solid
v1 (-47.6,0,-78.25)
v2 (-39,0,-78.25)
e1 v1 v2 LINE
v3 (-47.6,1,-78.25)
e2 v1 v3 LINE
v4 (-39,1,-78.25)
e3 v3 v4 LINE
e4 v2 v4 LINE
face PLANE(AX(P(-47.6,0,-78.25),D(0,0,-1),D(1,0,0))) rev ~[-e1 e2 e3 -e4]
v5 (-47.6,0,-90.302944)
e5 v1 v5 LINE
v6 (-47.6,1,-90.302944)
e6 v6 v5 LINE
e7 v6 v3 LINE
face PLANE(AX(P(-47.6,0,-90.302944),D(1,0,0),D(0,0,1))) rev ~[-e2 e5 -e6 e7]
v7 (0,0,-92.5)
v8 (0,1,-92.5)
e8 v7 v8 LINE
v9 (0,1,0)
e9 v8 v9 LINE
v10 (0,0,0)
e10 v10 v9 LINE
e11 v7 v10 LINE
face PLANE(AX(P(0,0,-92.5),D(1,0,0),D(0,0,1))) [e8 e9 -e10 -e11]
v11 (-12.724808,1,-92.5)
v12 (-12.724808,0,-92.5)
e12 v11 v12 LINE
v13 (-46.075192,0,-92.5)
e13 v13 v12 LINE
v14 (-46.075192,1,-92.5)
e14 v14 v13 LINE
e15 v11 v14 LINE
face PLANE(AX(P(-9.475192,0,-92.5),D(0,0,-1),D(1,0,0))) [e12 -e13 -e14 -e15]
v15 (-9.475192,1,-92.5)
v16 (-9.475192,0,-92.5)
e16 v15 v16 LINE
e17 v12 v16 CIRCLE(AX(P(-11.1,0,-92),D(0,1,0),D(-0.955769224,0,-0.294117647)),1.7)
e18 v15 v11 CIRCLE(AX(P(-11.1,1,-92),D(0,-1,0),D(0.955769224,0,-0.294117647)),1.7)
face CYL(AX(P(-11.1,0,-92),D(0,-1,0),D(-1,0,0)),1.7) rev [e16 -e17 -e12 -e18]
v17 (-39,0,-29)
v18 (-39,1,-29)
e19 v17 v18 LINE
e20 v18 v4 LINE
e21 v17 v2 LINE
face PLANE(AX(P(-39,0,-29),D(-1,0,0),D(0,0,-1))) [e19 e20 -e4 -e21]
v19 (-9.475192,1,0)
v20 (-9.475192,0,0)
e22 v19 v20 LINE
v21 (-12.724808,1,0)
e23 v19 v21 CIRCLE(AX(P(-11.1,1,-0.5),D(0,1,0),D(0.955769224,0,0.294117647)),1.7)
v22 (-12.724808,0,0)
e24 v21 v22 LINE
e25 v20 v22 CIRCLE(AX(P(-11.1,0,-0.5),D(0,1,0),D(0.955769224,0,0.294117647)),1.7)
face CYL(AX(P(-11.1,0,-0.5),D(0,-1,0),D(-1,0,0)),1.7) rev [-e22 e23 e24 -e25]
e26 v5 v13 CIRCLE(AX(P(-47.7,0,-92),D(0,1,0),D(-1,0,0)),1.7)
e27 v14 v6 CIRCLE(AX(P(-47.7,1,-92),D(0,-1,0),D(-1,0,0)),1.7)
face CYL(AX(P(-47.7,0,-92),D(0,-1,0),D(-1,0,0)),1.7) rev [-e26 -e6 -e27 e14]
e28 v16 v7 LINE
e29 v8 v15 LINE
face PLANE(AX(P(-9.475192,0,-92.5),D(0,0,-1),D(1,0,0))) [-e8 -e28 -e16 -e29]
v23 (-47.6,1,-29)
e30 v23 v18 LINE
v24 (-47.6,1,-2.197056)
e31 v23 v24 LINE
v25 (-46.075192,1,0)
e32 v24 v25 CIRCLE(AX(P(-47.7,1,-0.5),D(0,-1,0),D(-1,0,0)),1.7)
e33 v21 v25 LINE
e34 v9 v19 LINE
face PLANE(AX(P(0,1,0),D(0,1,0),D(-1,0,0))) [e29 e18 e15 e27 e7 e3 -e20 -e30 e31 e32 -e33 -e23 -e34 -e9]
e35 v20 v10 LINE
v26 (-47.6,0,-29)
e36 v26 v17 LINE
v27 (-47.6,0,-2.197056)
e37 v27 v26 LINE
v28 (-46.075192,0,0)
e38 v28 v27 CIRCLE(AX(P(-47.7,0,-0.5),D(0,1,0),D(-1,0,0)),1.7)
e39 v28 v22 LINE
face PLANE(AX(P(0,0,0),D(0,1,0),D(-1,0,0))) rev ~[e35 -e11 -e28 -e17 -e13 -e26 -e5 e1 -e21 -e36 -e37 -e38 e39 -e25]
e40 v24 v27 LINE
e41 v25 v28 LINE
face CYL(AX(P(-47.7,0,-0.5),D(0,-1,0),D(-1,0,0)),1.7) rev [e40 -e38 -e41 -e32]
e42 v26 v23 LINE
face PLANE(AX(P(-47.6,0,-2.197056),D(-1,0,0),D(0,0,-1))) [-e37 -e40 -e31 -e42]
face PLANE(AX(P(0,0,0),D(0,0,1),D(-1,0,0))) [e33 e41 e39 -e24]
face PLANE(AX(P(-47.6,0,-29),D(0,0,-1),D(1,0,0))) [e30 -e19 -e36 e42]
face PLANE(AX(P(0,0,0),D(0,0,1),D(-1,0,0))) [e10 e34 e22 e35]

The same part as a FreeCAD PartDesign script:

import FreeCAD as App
import Part
import Sketcher

V = App.Vector
Q = App.Units.Quantity

doc = App.newDocument("Part")
body = doc.addObject("PartDesign::Body", "Body")

# Sketch on XZ plane
sketch1 = doc.addObject("Sketcher::SketchObject", "Sketch")
body.addObject(sketch1)
sketch1.AttachmentSupport = (doc.XZ_Plane, [""])
sketch1.MapMode = "FlatFace"
sketch1.addGeometry(Part.LineSegment(V(0, 0, 0), V(0, -92, 0)), False)
sketch1.addGeometry(Part.LineSegment(V(0, -92, 0), V(-48, -92, 0)), False)
sketch1.addGeometry(Part.LineSegment(V(-48, -92, 0), V(-48, -78, 0)), False)
sketch1.addGeometry(Part.LineSegment(V(-48, -78, 0), V(-39, -78, 0)), False)
sketch1.addGeometry(Part.LineSegment(V(-39, -78, 0), V(-39, -29, 0)), False)
sketch1.addGeometry(Part.LineSegment(V(-39, -29, 0), V(-48, -29, 0)), False)
sketch1.addGeometry(Part.LineSegment(V(-48, -29, 0), V(-48, 0, 0)), False)
sketch1.addGeometry(Part.LineSegment(V(-48, 0, 0), V(0, 0, 0)), False)
sketch1.addConstraint(Sketcher.Constraint("Coincident", 0, 2, 1, 1))
sketch1.addConstraint(Sketcher.Constraint("Coincident", 1, 2, 2, 1))
sketch1.addConstraint(Sketcher.Constraint("Coincident", 2, 2, 3, 1))
sketch1.addConstraint(Sketcher.Constraint("Coincident", 3, 2, 4, 1))
sketch1.addConstraint(Sketcher.Constraint("Coincident", 4, 2, 5, 1))
sketch1.addConstraint(Sketcher.Constraint("Coincident", 5, 2, 6, 1))
sketch1.addConstraint(Sketcher.Constraint("Coincident", 6, 2, 7, 1))
sketch1.addConstraint(Sketcher.Constraint("Coincident", 7, 2, 0, 1))
sketch1.addConstraint(Sketcher.Constraint("Vertical", 0))
sketch1.addConstraint(Sketcher.Constraint("Horizontal", 1))
sketch1.addConstraint(Sketcher.Constraint("Vertical", 2))
sketch1.addConstraint(Sketcher.Constraint("Horizontal", 3))
sketch1.addConstraint(Sketcher.Constraint("Vertical", 4))
sketch1.addConstraint(Sketcher.Constraint("Horizontal", 5))
sketch1.addConstraint(Sketcher.Constraint("Vertical", 6))
sketch1.addConstraint(Sketcher.Constraint("Horizontal", 7))
sketch1.addConstraint(Sketcher.Constraint("Coincident", 7, 2, -1, 1))
sketch1.addConstraint(Sketcher.Constraint("Vertical", 2, 2, 5, 2))
sketch1.addConstraint(Sketcher.Constraint("DistanceY", 6, 1, 6, 2, Q("29 mm")))
sketch1.addConstraint(Sketcher.Constraint("DistanceX", 3, 1, 3, 2, Q("8.6 mm")))
sketch1.addConstraint(Sketcher.Constraint("DistanceY", 0, 2, 0, 1, Q("92.5 mm")))
sketch1.addConstraint(Sketcher.Constraint("DistanceX", 3, 2, -1, 1, Q("39 mm")))
sketch1.addConstraint(Sketcher.Constraint("DistanceY", 2, 1, 2, 2, Q("14.25 mm")))
pad1 = doc.addObject("PartDesign::Pad", "Pad")
body.addObject(pad1)
pad1.Profile = sketch1
pad1.Length = 1
pad1.Reversed = True

# Sketch on XZ plane
sketch2 = doc.addObject("Sketcher::SketchObject", "Sketch001")
body.addObject(sketch2)
sketch2.AttachmentSupport = (doc.XZ_Plane, [""])
sketch2.MapMode = "FlatFace"
sketch2.addGeometry(Part.Circle(V(-11.1, -0.5, 0), V(0, 0, 1), 1.7), False)
sketch2.addGeometry(Part.Circle(V(-11.1, -92, 0), V(0, 0, 1), 1.7), False)
sketch2.addGeometry(Part.Circle(V(-47.7, -0.5, 0), V(0, 0, 1), 1.7), False)
sketch2.addGeometry(Part.Circle(V(-47.7, -92, 0), V(0, 0, 1), 1.7), False)
sketch2.addConstraint(Sketcher.Constraint("Equal", 0, 1))
sketch2.addConstraint(Sketcher.Constraint("Equal", 1, 2))
sketch2.addConstraint(Sketcher.Constraint("Equal", 2, 3))
sketch2.addConstraint(Sketcher.Constraint("Horizontal", 0, 3, 2, 3))
sketch2.addConstraint(Sketcher.Constraint("Horizontal", 1, 3, 3, 3))
sketch2.addConstraint(Sketcher.Constraint("Vertical", 0, 3, 1, 3))
sketch2.addConstraint(Sketcher.Constraint("Vertical", 2, 3, 3, 3))
sketch2.addConstraint(Sketcher.Constraint("Diameter", 0, Q("3.4 mm")))
sketch2.addConstraint(Sketcher.Constraint("DistanceY", 0, 3, -1, 1, Q("0.5 mm")))
sketch2.addConstraint(Sketcher.Constraint("DistanceX", 2, 3, 0, 3, Q("36.6 mm")))
sketch2.addConstraint(Sketcher.Constraint("DistanceY", 1, 3, -1, 1, Q("92 mm")))
sketch2.addConstraint(Sketcher.Constraint("DistanceX", 0, 3, -1, 1, Q("11.1 mm")))
pocket1 = doc.addObject("PartDesign::Pocket", "Pocket")
body.addObject(pocket1)
pocket1.Profile = sketch2
pocket1.Length = 1

doc.recompute()
